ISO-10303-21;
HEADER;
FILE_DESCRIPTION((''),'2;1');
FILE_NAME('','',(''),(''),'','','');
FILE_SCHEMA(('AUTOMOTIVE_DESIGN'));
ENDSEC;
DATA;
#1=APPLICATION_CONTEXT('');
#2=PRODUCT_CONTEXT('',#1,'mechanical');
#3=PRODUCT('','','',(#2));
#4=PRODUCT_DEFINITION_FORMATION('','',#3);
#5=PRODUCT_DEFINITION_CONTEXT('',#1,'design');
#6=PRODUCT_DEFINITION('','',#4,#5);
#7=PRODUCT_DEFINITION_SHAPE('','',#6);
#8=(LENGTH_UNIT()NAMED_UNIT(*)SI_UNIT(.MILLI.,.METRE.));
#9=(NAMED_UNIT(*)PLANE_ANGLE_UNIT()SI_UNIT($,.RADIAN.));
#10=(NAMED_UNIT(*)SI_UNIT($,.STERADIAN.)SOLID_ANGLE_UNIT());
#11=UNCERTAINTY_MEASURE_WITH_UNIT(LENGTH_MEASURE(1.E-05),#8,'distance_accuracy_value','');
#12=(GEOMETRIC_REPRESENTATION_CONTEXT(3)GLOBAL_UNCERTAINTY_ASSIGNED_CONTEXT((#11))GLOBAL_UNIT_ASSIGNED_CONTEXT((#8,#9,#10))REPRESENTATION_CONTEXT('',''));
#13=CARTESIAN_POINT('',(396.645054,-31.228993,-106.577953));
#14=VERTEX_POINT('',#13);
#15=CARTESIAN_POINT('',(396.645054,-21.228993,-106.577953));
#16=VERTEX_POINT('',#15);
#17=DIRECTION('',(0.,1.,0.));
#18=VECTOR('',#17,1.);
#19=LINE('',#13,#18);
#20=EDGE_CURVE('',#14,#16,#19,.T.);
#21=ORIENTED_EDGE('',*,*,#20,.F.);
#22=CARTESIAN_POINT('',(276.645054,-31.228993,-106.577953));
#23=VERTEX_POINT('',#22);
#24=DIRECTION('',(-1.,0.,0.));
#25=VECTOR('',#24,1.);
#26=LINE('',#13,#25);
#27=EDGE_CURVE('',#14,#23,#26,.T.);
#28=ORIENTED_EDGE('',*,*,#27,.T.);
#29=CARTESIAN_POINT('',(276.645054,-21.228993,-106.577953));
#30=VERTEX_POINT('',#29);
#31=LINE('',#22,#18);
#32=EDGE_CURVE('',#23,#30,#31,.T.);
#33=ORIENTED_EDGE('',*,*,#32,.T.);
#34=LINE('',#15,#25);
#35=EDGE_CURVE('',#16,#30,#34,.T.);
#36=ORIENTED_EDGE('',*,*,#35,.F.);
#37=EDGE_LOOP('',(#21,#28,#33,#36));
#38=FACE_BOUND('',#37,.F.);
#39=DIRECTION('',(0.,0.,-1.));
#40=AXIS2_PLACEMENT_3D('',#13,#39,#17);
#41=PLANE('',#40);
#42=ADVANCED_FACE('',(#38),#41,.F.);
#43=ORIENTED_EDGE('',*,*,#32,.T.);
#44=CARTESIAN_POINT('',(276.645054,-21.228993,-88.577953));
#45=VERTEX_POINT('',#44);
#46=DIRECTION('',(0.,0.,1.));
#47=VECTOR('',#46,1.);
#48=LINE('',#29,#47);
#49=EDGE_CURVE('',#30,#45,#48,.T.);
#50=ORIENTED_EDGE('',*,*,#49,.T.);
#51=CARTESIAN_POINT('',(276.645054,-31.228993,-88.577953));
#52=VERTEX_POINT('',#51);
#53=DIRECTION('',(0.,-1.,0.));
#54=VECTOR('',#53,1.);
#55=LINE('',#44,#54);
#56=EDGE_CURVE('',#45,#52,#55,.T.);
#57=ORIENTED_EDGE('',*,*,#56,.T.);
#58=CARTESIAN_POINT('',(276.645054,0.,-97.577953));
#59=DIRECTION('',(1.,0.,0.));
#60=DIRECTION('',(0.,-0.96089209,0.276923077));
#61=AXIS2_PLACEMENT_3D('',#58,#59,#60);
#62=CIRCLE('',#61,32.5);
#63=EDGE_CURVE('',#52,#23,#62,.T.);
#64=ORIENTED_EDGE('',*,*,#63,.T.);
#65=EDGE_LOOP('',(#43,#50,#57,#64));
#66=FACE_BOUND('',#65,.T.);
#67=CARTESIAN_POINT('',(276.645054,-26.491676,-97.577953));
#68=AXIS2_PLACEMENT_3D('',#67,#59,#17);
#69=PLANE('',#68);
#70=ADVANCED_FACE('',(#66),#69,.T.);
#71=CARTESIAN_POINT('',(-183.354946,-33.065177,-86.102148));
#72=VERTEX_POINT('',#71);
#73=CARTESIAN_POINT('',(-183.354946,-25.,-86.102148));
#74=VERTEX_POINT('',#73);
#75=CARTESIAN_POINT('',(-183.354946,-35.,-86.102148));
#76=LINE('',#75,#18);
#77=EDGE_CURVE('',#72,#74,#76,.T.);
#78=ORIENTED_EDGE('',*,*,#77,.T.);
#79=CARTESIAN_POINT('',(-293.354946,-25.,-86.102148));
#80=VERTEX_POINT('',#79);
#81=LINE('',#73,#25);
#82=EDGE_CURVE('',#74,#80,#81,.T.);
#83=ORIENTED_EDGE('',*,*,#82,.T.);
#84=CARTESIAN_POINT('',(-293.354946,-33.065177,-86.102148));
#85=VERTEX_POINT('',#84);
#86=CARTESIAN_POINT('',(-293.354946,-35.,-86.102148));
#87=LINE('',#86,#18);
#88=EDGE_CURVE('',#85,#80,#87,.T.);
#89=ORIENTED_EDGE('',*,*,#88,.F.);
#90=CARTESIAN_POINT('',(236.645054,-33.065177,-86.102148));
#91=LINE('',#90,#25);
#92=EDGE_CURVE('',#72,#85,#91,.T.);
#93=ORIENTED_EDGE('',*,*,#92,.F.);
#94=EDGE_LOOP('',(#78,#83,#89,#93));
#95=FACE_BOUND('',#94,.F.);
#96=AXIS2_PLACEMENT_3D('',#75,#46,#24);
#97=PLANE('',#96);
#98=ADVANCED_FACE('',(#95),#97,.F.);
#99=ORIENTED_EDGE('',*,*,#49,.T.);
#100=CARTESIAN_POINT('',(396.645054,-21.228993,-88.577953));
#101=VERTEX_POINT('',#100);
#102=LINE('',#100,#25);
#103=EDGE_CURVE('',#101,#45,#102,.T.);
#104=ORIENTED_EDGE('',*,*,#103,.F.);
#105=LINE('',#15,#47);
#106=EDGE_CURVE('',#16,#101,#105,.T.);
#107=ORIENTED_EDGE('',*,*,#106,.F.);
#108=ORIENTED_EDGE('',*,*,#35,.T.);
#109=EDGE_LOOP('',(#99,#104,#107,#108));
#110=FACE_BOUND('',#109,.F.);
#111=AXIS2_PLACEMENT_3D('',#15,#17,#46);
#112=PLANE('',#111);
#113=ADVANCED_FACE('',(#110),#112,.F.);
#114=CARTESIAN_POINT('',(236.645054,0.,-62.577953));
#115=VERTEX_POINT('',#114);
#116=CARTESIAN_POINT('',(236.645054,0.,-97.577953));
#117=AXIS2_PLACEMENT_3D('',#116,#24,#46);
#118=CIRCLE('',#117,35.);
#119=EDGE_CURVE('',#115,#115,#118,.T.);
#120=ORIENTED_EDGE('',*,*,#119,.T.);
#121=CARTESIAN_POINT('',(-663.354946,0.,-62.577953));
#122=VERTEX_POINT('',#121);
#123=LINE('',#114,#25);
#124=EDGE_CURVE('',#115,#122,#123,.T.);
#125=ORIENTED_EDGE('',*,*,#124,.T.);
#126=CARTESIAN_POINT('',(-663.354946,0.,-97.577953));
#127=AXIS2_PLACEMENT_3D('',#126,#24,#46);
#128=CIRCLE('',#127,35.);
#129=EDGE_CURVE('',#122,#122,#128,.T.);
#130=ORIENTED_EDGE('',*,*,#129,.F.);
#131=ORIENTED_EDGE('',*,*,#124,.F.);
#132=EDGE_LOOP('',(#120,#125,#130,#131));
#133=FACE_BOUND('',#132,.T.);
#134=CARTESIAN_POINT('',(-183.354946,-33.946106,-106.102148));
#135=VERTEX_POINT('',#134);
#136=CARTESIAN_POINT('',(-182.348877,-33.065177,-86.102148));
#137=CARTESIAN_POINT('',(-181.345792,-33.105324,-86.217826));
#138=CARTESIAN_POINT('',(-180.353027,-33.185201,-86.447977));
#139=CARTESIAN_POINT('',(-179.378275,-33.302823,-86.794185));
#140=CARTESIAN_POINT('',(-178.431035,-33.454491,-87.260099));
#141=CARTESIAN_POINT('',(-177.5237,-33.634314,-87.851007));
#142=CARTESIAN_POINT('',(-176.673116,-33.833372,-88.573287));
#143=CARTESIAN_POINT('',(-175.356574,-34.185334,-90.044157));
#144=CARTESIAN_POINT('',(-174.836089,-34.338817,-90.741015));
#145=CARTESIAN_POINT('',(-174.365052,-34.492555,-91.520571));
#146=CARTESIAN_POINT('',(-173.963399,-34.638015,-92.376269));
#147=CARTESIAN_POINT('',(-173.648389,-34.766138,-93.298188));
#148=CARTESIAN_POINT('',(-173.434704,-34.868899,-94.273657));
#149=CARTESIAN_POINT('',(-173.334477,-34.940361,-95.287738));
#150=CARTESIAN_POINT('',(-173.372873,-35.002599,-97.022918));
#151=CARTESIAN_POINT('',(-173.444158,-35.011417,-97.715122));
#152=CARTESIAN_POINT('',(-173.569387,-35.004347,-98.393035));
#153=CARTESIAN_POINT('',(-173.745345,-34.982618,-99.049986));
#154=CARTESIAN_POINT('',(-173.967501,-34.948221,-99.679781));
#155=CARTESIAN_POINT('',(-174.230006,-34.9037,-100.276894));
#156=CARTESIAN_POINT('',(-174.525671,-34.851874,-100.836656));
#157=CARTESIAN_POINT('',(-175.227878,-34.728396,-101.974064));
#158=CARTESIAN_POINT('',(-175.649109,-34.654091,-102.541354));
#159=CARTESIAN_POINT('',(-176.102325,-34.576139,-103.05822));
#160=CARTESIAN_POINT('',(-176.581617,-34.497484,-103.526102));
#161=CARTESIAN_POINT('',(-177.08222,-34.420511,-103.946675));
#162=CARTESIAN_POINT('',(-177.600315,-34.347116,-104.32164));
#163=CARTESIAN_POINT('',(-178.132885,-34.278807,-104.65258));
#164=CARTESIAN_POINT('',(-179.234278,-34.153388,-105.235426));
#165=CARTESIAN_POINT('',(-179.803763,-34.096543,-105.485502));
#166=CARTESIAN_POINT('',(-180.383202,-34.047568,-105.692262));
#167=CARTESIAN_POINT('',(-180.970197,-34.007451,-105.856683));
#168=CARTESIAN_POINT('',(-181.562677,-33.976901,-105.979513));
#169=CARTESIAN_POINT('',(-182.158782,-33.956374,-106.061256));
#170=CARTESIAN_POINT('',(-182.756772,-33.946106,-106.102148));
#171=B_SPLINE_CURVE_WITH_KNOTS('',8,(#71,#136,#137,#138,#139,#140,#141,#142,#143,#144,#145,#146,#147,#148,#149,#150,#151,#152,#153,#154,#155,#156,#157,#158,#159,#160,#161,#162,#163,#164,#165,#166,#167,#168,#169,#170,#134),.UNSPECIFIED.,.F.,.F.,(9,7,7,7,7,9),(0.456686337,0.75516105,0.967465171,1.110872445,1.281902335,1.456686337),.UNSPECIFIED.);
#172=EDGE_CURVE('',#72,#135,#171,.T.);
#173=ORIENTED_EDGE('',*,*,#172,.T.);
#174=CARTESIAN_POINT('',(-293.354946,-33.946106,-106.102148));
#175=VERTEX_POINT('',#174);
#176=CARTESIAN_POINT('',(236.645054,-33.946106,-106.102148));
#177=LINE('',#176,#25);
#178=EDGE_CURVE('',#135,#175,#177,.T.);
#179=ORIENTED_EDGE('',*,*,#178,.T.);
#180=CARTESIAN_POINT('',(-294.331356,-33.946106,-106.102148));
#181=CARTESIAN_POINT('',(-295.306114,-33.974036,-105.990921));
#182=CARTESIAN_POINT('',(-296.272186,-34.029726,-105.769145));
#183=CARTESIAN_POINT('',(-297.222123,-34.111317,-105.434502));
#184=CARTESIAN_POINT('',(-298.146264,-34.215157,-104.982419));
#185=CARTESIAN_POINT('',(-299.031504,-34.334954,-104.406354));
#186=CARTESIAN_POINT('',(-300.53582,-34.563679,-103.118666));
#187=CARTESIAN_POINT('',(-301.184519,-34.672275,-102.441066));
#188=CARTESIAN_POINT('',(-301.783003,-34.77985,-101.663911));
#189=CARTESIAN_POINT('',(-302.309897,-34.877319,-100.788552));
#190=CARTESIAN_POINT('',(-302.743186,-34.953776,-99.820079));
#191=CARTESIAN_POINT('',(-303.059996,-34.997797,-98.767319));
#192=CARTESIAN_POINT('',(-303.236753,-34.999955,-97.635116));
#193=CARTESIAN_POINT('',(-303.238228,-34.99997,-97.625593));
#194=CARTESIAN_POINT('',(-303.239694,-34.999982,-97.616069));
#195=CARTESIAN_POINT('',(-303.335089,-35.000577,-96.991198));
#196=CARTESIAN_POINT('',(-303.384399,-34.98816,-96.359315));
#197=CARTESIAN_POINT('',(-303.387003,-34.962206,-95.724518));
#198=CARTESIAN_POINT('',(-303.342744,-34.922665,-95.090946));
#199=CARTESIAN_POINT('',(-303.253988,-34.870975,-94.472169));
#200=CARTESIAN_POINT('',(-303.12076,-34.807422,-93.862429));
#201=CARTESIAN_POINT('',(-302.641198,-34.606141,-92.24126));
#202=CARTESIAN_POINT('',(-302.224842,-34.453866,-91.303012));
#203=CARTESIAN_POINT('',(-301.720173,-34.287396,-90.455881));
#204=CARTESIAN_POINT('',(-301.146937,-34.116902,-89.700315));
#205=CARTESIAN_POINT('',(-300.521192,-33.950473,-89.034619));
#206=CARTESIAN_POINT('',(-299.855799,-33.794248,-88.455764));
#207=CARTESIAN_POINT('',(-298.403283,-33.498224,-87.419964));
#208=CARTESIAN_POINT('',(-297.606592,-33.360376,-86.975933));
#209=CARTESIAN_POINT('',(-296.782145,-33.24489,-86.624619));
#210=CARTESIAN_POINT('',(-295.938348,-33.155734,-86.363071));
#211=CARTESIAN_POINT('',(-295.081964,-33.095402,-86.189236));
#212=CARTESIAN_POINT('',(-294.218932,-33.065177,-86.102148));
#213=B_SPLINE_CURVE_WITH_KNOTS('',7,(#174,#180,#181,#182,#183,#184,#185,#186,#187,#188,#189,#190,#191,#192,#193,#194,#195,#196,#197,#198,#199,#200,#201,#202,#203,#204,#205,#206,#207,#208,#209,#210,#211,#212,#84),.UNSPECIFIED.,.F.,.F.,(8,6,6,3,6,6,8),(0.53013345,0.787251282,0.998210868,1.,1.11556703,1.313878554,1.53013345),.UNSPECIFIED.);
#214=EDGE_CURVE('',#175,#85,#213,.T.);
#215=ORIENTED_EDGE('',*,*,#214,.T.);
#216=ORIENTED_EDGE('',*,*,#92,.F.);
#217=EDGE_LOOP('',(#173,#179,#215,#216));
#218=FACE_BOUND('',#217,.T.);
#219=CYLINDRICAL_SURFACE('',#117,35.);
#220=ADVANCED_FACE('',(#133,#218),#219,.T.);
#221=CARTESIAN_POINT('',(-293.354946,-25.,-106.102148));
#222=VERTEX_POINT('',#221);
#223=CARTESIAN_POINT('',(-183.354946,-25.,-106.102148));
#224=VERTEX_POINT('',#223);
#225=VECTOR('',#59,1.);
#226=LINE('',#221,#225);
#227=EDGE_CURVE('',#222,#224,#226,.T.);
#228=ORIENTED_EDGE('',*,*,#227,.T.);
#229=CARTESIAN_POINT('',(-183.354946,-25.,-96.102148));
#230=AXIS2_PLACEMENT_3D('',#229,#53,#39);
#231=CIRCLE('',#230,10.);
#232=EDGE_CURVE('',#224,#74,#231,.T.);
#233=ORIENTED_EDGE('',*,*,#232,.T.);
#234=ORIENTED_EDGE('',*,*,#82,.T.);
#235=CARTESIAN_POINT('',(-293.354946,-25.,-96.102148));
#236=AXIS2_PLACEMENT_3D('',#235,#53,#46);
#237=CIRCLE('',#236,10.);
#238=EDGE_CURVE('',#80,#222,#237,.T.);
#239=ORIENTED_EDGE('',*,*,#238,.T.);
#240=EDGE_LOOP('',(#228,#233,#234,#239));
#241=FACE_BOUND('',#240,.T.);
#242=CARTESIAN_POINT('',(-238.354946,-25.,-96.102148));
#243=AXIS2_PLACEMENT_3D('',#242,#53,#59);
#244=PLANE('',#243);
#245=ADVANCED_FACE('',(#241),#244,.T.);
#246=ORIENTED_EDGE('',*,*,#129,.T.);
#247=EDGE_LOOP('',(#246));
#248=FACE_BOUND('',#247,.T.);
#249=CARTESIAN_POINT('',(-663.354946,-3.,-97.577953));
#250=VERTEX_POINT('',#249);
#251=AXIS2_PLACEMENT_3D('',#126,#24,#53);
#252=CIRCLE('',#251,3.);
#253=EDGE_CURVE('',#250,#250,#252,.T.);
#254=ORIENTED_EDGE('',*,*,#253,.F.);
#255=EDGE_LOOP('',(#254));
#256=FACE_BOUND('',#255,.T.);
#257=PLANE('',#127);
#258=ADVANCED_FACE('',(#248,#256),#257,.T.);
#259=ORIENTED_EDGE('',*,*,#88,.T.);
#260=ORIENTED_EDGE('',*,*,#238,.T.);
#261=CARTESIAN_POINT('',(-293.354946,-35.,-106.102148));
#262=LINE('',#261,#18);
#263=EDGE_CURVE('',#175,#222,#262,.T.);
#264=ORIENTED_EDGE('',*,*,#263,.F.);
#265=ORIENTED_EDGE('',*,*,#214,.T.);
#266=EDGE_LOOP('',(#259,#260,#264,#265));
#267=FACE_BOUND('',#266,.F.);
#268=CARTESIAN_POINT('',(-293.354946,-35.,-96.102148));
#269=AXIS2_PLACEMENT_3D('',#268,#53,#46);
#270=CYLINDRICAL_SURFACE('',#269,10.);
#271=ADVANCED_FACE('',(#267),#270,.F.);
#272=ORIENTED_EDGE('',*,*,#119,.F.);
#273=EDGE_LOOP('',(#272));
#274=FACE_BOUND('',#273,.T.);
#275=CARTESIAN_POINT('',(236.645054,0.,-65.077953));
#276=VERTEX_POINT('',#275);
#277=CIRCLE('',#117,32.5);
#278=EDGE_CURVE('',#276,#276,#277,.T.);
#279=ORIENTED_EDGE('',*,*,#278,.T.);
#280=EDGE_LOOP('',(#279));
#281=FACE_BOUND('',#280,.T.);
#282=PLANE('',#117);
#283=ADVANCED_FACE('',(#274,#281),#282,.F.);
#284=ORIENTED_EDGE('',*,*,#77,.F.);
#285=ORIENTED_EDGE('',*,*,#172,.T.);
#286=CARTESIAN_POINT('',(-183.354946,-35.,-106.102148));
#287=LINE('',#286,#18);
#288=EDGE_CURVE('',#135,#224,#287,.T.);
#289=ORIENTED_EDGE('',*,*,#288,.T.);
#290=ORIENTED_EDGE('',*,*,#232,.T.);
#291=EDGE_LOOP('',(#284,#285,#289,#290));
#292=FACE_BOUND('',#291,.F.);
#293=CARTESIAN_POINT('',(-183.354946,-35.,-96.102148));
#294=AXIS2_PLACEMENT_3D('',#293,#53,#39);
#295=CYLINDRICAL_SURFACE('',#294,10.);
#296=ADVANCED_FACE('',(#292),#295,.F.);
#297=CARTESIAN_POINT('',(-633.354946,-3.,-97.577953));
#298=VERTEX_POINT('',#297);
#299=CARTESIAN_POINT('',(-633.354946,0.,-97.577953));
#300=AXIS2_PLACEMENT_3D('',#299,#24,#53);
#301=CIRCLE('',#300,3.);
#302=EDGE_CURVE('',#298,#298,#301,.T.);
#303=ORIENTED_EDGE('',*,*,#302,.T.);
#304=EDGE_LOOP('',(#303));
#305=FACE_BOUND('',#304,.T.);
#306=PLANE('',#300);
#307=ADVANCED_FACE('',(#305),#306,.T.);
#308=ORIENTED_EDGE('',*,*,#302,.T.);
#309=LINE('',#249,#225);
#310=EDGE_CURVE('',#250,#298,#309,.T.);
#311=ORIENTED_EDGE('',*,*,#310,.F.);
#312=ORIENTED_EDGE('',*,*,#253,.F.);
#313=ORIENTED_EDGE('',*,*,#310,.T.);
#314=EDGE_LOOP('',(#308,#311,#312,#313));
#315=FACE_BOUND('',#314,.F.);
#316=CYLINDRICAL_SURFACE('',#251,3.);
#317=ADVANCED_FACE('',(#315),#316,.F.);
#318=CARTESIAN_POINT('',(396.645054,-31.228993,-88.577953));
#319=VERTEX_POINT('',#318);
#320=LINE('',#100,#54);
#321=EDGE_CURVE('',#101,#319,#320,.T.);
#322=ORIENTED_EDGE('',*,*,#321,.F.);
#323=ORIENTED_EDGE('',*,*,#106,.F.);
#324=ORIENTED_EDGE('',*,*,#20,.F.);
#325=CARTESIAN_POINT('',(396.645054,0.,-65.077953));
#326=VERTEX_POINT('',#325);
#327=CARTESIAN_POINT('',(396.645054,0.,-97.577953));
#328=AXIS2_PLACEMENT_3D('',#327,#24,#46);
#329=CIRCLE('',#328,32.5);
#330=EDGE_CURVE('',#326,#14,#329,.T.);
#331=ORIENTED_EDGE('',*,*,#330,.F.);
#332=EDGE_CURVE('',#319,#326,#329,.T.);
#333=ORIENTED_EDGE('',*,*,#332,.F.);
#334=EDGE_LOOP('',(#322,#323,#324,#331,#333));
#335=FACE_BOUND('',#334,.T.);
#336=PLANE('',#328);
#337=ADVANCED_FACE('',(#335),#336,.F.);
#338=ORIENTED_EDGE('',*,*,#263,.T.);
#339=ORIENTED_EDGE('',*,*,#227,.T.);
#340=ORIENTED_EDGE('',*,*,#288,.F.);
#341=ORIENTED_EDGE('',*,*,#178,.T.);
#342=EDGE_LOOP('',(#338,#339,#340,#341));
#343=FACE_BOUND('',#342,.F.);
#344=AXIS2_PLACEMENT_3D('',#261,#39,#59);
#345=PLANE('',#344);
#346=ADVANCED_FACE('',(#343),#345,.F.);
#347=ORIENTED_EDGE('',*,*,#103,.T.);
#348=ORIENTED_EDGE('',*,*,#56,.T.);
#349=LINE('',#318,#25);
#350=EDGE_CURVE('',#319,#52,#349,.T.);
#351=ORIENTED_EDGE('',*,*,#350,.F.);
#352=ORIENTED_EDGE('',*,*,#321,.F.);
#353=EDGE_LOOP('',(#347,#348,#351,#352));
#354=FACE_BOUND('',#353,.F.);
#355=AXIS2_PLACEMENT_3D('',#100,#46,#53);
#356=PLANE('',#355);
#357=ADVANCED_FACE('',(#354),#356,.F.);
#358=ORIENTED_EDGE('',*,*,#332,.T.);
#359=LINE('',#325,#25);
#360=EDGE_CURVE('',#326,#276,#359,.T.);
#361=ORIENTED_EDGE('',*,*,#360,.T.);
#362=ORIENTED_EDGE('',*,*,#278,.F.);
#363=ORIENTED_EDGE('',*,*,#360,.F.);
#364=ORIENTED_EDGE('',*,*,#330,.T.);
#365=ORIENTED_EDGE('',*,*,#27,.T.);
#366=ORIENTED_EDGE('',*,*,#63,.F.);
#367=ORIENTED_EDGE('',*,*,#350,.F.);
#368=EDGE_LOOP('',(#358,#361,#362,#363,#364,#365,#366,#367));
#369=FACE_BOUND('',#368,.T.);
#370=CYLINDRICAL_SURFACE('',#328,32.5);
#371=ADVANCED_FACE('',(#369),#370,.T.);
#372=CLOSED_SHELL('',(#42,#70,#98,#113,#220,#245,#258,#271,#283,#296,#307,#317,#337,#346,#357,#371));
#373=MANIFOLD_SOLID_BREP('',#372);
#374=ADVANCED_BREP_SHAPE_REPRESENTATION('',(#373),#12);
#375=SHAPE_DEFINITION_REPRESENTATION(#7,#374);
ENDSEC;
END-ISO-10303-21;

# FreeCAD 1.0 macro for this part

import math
import FreeCAD as App
import Part
import Sketcher


def add_polygon(sketch, points):
    """Adds a closed chain of lines whose ends are joined by coincident constraints."""
    first, n = sketch.GeometryCount, len(points)
    for a, b in zip(points, points[1:] + points[:1]):
        sketch.addGeometry(Part.LineSegment(App.Vector(*a, 0), App.Vector(*b, 0)), False)
    for i in range(n):
        sketch.addConstraint(Sketcher.Constraint("Coincident", first + i, 2, first + (i + 1) % n, 1))

doc = App.newDocument("Part")
body = doc.addObject("PartDesign::Body", "Body")

sketch1 = body.newObject("Sketcher::SketchObject", "Sketch")
sketch1.AttachmentSupport = (doc.getObject("XZ_Plane"), [""])
sketch1.MapMode = "FlatFace"
add_polygon(sketch1, [(236.6, -62.6), (-663.4, -62.6), (-663.4, -97.6), (396.6, -97.6), (396.6, -65.1), (236.6, -65.1)])
sketch1.addGeometry(Part.LineSegment(App.Vector(396.6, -97.6, 0), App.Vector(-663.4, -97.6, 0)), True)
sketch1.addConstraint([
    Sketcher.Constraint("Horizontal", 0),
    Sketcher.Constraint("Vertical", 1),
    Sketcher.Constraint("Horizontal", 2),
    Sketcher.Constraint("Vertical", 3),
    Sketcher.Constraint("Horizontal", 4),
    Sketcher.Constraint("Vertical", 5),
    Sketcher.Constraint("Horizontal", 6),
    Sketcher.Constraint("Coincident", 6, 1, 2, 2),
    Sketcher.Constraint("Vertical", 0, 2, 6, 2),
    Sketcher.Constraint("DistanceX", 0, 2, 0, 1, 900.0),
    Sketcher.Constraint("DistanceX", 2, 1, 2, 2, 1060.0),
    Sketcher.Constraint("DistanceY", 1, 2, 1, 1, 35.0),
    Sketcher.Constraint("DistanceY", 3, 1, 3, 2, 32.5),
    Sketcher.Constraint("DistanceX", 0, 2, -1, 1, 663.354946),
    Sketcher.Constraint("DistanceY", 0, 2, -1, 1, 62.577953),
])
revolution = body.newObject("PartDesign::Revolution", "Revolution")
revolution.Profile = sketch1
revolution.ReferenceAxis = (sketch1, ["Axis0"])
revolution.Angle = 360

sketch2 = body.newObject("Sketcher::SketchObject", "Sketch001")
sketch2.AttachmentSupport = (doc.getObject("YZ_Plane"), [""])
sketch2.MapMode = "FlatFace"
sketch2.AttachmentOffset = App.Placement(App.Vector(0, 0, 396.645054), App.Rotation())
sketch2.addGeometry([
    Part.LineSegment(App.Vector(-21, -89, 0), App.Vector(-31, -89, 0)),
    Part.ArcOfCircle(Part.Circle(App.Vector(0, -98, 0), App.Vector(0, 0, 1), 33), math.radians(164), math.radians(196)),
    Part.LineSegment(App.Vector(-31, -107, 0), App.Vector(-21, -107, 0)),
    Part.LineSegment(App.Vector(-21, -107, 0), App.Vector(-21, -89, 0)),
], False)
sketch2.addConstraint([
    Sketcher.Constraint("Coincident", 0, 2, 1, 1),
    Sketcher.Constraint("Coincident", 1, 2, 2, 1),
    Sketcher.Constraint("Coincident", 2, 2, 3, 1),
    Sketcher.Constraint("Coincident", 3, 2, 0, 1),
    Sketcher.Constraint("Horizontal", 0),
    Sketcher.Constraint("Horizontal", 2),
    Sketcher.Constraint("Vertical", 3),
    Sketcher.Constraint("PointOnObject", 1, 3, -2),
    Sketcher.Constraint("Vertical", 0, 2, 1, 2),
    Sketcher.Constraint("Radius", 1, 32.5),
    Sketcher.Constraint("DistanceX", 0, 2, 0, 1, 10.0),
    Sketcher.Constraint("DistanceY", 3, 1, 3, 2, 18.0),
    Sketcher.Constraint("DistanceY", 1, 3, -1, 1, 97.577953),
])
pocket1 = body.newObject("PartDesign::Pocket", "Pocket")
pocket1.Profile = sketch2
pocket1.Length = 120

sketch3 = body.newObject("Sketcher::SketchObject", "Sketch002")
sketch3.AttachmentSupport = (doc.getObject("XZ_Plane"), [""])
sketch3.MapMode = "FlatFace"
sketch3.AttachmentOffset = App.Placement(App.Vector(0, 0, 35), App.Rotation())
sketch3.addGeometry([
    Part.LineSegment(App.Vector(-183, -86, 0), App.Vector(-293, -86, 0)),
    Part.ArcOfCircle(Part.Circle(App.Vector(-293, -96, 0), App.Vector(0, 0, 1), 10), math.radians(90), math.radians(270)),
    Part.LineSegment(App.Vector(-293, -106, 0), App.Vector(-183, -106, 0)),
    Part.ArcOfCircle(Part.Circle(App.Vector(-183, -96, 0), App.Vector(0, 0, 1), 10), math.radians(-90), math.radians(90)),
], False)
sketch3.addConstraint([
    Sketcher.Constraint("Tangent", 0, 2, 1, 1),
    Sketcher.Constraint("Tangent", 1, 2, 2, 1),
    Sketcher.Constraint("Tangent", 2, 2, 3, 1),
    Sketcher.Constraint("Tangent", 3, 2, 0, 1),
    Sketcher.Constraint("Horizontal", 0),
    Sketcher.Constraint("Horizontal", 2),
    Sketcher.Constraint("Radius", 1, 10.0),
    Sketcher.Constraint("DistanceX", 0, 2, 0, 1, 110.0),
    Sketcher.Constraint("DistanceY", 1, 3, -1, 1, 96.102148),
    Sketcher.Constraint("DistanceX", 1, 3, -1, 1, 293.354946),
])
pocket2 = body.newObject("PartDesign::Pocket", "Pocket001")
pocket2.Profile = sketch3
pocket2.Length = 10

sketch4 = body.newObject("Sketcher::SketchObject", "Sketch003")
sketch4.AttachmentSupport = (doc.getObject("YZ_Plane"), [""])
sketch4.MapMode = "FlatFace"
sketch4.AttachmentOffset = App.Placement(App.Vector(0, 0, -663.354946), App.Rotation())
sketch4.addGeometry(Part.Circle(App.Vector(0, -97.6, 0), App.Vector(0, 0, 1), 3), False)
sketch4.addConstraint([
    Sketcher.Constraint("PointOnObject", 0, 3, -2),
    Sketcher.Constraint("Diameter", 0, 6.0),
    Sketcher.Constraint("DistanceY", 0, 3, -1, 1, 97.577953),
])
pocket3 = body.newObject("PartDesign::Pocket", "Pocket002")
pocket3.Profile = sketch4
pocket3.Length = 30
pocket3.Reversed = True

doc.recompute()
